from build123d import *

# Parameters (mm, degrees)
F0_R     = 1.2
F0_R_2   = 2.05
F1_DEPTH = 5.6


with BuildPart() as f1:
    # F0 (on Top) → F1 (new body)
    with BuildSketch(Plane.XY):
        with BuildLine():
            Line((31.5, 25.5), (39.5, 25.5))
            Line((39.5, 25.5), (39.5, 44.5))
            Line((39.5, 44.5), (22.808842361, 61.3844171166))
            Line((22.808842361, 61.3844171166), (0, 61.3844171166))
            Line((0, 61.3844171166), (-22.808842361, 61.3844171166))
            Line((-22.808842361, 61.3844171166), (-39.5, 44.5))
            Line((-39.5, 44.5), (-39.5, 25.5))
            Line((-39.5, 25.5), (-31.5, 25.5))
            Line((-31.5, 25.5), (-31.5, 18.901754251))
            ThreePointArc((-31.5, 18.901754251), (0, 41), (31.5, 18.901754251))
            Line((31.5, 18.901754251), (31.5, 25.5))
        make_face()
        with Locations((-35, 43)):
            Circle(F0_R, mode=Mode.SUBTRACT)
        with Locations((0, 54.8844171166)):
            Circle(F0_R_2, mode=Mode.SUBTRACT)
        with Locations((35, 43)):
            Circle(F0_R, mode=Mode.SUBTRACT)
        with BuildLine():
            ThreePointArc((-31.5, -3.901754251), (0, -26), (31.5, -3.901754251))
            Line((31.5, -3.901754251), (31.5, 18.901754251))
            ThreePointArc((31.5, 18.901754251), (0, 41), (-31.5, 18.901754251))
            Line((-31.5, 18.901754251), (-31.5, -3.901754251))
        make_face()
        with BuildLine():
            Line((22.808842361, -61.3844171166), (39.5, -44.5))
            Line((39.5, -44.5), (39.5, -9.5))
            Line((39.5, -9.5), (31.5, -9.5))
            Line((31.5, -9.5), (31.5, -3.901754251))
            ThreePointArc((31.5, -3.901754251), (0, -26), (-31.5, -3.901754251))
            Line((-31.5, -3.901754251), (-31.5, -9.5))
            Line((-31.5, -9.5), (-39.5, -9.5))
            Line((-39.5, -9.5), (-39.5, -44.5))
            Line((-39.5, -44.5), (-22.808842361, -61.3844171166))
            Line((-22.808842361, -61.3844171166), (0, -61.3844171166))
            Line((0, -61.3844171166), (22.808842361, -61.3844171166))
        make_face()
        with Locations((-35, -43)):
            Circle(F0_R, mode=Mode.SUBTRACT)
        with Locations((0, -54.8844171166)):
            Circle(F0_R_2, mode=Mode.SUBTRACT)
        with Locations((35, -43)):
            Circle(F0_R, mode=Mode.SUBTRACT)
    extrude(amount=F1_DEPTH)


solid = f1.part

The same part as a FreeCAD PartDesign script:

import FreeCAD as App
import Part
import Sketcher

V = App.Vector


def add_polygon(sketch, points):
    """Adds a closed chain of lines whose ends are joined by coincident constraints."""
    first, n = sketch.GeometryCount, len(points)
    for a, b in zip(points, points[1:] + points[:1]):
        sketch.addGeometry(Part.LineSegment(App.Vector(*a, 0), App.Vector(*b, 0)), False)
    for i in range(n):
        sketch.addConstraint(Sketcher.Constraint("Coincident", first + i, 2, first + (i + 1) % n, 1))

doc = App.newDocument("Part")
body = doc.addObject("PartDesign::Body", "Body")

# Sketch on XY plane
sketch1 = body.newObject("Sketcher::SketchObject", "Sketch")
sketch1.AttachmentSupport = (doc.getObject("XY_Plane"), [""])
sketch1.MapMode = "FlatFace"
add_polygon(sketch1, [(31.5, 25.5), (39.5, 25.5), (39.5, 44.5), (22.808842, 61.384417), (-22.808842, 61.384417), (-39.5, 44.5), (-39.5, 25.5), (-31.5, 25.5), (-31.5, -9.5), (-39.5, -9.5), (-39.5, -44.5), (-22.808842, -61.384417), (22.808842, -61.384417), (39.5, -44.5), (39.5, -9.5), (31.5, -9.5)])  # lines 0-15
sketch1.addGeometry(Part.Circle(V(-35, -43, 0), V(0, 0, 1), 1.2), False)  # 16
sketch1.addGeometry(Part.Circle(V(0, -54.884417, 0), V(0, 0, 1), 2.05), False)  # 17
sketch1.addGeometry(Part.Circle(V(35, -43, 0), V(0, 0, 1), 1.2), False)  # 18
sketch1.addGeometry(Part.Circle(V(-35, 43, 0), V(0, 0, 1), 1.2), False)  # 19
sketch1.addGeometry(Part.Circle(V(0, 54.884417, 0), V(0, 0, 1), 2.05), False)  # 20
sketch1.addGeometry(Part.Circle(V(35, 43, 0), V(0, 0, 1), 1.2), False)  # 21
sketch1.addConstraint(Sketcher.Constraint("Horizontal", 0))
sketch1.addConstraint(Sketcher.Constraint("Vertical", 1))
sketch1.addConstraint(Sketcher.Constraint("Horizontal", 3))
sketch1.addConstraint(Sketcher.Constraint("Vertical", 5))
sketch1.addConstraint(Sketcher.Constraint("Horizontal", 6))
sketch1.addConstraint(Sketcher.Constraint("Vertical", 7))
sketch1.addConstraint(Sketcher.Constraint("Horizontal", 8))
sketch1.addConstraint(Sketcher.Constraint("Vertical", 9))
sketch1.addConstraint(Sketcher.Constraint("Horizontal", 11))
sketch1.addConstraint(Sketcher.Constraint("Vertical", 13))
sketch1.addConstraint(Sketcher.Constraint("Horizontal", 14))
sketch1.addConstraint(Sketcher.Constraint("Vertical", 15))
sketch1.addConstraint(Sketcher.Constraint("Equal", 16, 18))
sketch1.addConstraint(Sketcher.Constraint("Equal", 18, 19))
sketch1.addConstraint(Sketcher.Constraint("Equal", 17, 20))
sketch1.addConstraint(Sketcher.Constraint("Equal", 19, 21))
sketch1.addConstraint(Sketcher.Constraint("Symmetric", 18, 3, 19, 3, -1, 1))
sketch1.addConstraint(Sketcher.Constraint("Symmetric", 17, 3, 20, 3, -1, 1))
sketch1.addConstraint(Sketcher.Constraint("Symmetric", 16, 3, 21, 3, -1, 1))
sketch1.addConstraint(Sketcher.Constraint("Symmetric", 1, 2, 9, 2, -1, 1))
sketch1.addConstraint(Sketcher.Constraint("Symmetric", 2, 2, 10, 2, -1, 1))
sketch1.addConstraint(Sketcher.Constraint("Symmetric", 4, 2, 12, 2, -1, 1))
sketch1.addConstraint(Sketcher.Constraint("Symmetric", 16, 3, 18, 3, -2))
sketch1.addConstraint(Sketcher.Constraint("Symmetric", 1, 2, 4, 2, -2))
sketch1.addConstraint(Sketcher.Constraint("Symmetric", 7, 2, 14, 2, -2))
sketch1.addConstraint(Sketcher.Constraint("PointOnObject", 17, 3, -2))
sketch1.addConstraint(Sketcher.Constraint("Parallel", 4, 12))
sketch1.addConstraint(Sketcher.Constraint("Horizontal", 0, 2, 5, 2))
sketch1.addConstraint(Sketcher.Constraint("Vertical", 3, 2, 10, 2))
sketch1.addConstraint(Sketcher.Constraint("Equal", 7, 9))
sketch1.addConstraint(Sketcher.Constraint("Diameter", 16, 2.4))
sketch1.addConstraint(Sketcher.Constraint("Diameter", 17, 4.1))
sketch1.addConstraint(Sketcher.Constraint("DistanceX", 0, 1, 0, 2, 8.0))
sketch1.addConstraint(Sketcher.Constraint("DistanceY", 1, 1, 1, 2, 19.0))
sketch1.addConstraint(Sketcher.Constraint("DistanceY", 7, 2, 7, 1, 35.0))
sketch1.addConstraint(Sketcher.Constraint("DistanceX", 16, 3, -1, 1, 35.0))
sketch1.addConstraint(Sketcher.Constraint("DistanceY", 16, 3, -1, 1, 43.0))
sketch1.addConstraint(Sketcher.Constraint("DistanceX", -1, 1, 0, 2, 39.5))
sketch1.addConstraint(Sketcher.Constraint("DistanceY", 20, 3, 2, 2, 6.5))
sketch1.addConstraint(Sketcher.Constraint("Distance", 2, 23.74191))
sketch1.addConstraint(Sketcher.Constraint("DistanceX", 3, 2, 3, 1, 45.617685))
pad1 = body.newObject("PartDesign::Pad", "Pad")
pad1.Profile = sketch1
pad1.Length = 5.6

doc.recompute()
